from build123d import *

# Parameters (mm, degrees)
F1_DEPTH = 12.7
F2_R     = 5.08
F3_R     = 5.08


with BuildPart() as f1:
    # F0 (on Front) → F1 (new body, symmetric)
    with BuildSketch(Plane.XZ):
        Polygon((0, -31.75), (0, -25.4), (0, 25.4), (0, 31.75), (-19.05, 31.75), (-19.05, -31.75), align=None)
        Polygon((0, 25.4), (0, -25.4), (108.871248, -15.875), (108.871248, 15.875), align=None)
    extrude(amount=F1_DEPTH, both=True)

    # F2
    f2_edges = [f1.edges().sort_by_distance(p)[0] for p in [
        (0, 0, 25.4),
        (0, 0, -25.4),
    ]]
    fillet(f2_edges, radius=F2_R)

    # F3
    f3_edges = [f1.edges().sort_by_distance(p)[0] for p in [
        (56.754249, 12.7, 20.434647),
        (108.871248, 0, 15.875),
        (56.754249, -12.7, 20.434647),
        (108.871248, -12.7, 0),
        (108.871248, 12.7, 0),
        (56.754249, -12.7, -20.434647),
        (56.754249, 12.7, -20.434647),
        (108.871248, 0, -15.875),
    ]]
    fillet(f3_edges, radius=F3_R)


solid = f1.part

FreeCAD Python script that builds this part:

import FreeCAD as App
import Part
import Sketcher
Q = App.Units.Quantity


def edges_at(feature, points):
    """Names of the edges that pass closest to the given points."""
    edges = feature.Shape.Edges
    near = lambda p: min(range(len(edges)), key=lambda i: edges[i].distToShape(Part.Vertex(*p))[0])
    return sorted({f"Edge{near(p) + 1}" for p in points})

doc = App.newDocument("Part")
params = doc.addObject("Spreadsheet::Sheet", "Params")
for row, (alias, value) in enumerate([
    ("sketch1_height", "2.5 in"),
    ("sketch1_width", "0.75 in"),
    ("sketch1_height2", "1.25 in"),
    ("pad1_length", "1 in"),
    ("fillet_radius", "0.2 in"),
    ("fillet2_radius", "0.2 in"),
], start=1):
    params.set(f"A{row}", alias)
    params.set(f"B{row}", "=" + value)
    params.setAlias(f"B{row}", alias)

body = doc.addObject("PartDesign::Body", "Body")

sketch1 = body.newObject("Sketcher::SketchObject", "Sketch")
sketch1.AttachmentSupport = (doc.getObject("XZ_Plane"), [""])
sketch1.MapMode = "FlatFace"
sketch1.addGeometry(Part.LineSegment(App.Vector(0, -32, 0), App.Vector(0, -25, 0)), False)
sketch1.addGeometry(Part.LineSegment(App.Vector(0, -25, 0), App.Vector(109, -16, 0)), False)
sketch1.addGeometry(Part.LineSegment(App.Vector(109, -16, 0), App.Vector(109, 16, 0)), False)
sketch1.addGeometry(Part.LineSegment(App.Vector(109, 16, 0), App.Vector(0, 25, 0)), False)
sketch1.addGeometry(Part.LineSegment(App.Vector(0, 25, 0), App.Vector(0, 32, 0)), False)
sketch1.addGeometry(Part.LineSegment(App.Vector(0, 32, 0), App.Vector(-19, 32, 0)), False)
sketch1.addGeometry(Part.LineSegment(App.Vector(-19, 32, 0), App.Vector(-19, -32, 0)), False)
sketch1.addGeometry(Part.LineSegment(App.Vector(-19, -32, 0), App.Vector(0, -32, 0)), False)
sketch1.addConstraint(Sketcher.Constraint("Coincident", 0, 2, 1, 1))
sketch1.addConstraint(Sketcher.Constraint("Coincident", 1, 2, 2, 1))
sketch1.addConstraint(Sketcher.Constraint("Coincident", 2, 2, 3, 1))
sketch1.addConstraint(Sketcher.Constraint("Coincident", 3, 2, 4, 1))
sketch1.addConstraint(Sketcher.Constraint("Coincident", 4, 2, 5, 1))
sketch1.addConstraint(Sketcher.Constraint("Coincident", 5, 2, 6, 1))
sketch1.addConstraint(Sketcher.Constraint("Coincident", 6, 2, 7, 1))
sketch1.addConstraint(Sketcher.Constraint("Coincident", 7, 2, 0, 1))
sketch1.addConstraint(Sketcher.Constraint("Vertical", 0))
sketch1.addConstraint(Sketcher.Constraint("Vertical", 2))
sketch1.addConstraint(Sketcher.Constraint("Vertical", 4))
sketch1.addConstraint(Sketcher.Constraint("Horizontal", 5))
sketch1.addConstraint(Sketcher.Constraint("Vertical", 6))
sketch1.addConstraint(Sketcher.Constraint("Horizontal", 7))
sketch1.addConstraint(Sketcher.Constraint("Symmetric", 0, 2, 3, 2, -1, 1))
sketch1.addConstraint(Sketcher.Constraint("Symmetric", 4, 2, 7, 2, -1))
sketch1.addConstraint(Sketcher.Constraint("Equal", 1, 3))
sketch1.addConstraint(Sketcher.Constraint("DistanceY", 6, 2, 6, 1, Q("2.5 in")))
sketch1.addConstraint(Sketcher.Constraint("DistanceY", 0, 2, -1, 1, Q("1 in")))
sketch1.addConstraint(Sketcher.Constraint("Angle", 1, Q("5 deg")))
sketch1.addConstraint(Sketcher.Constraint("DistanceX", 5, 2, 5, 1, Q("0.75 in")))
sketch1.addConstraint(Sketcher.Constraint("DistanceY", 2, 1, 2, 2, Q("1.25 in")))
sketch1.setExpression("Constraints[17]", "Params.sketch1_height")
sketch1.setExpression("Constraints[20]", "Params.sketch1_width")
sketch1.setExpression("Constraints[21]", "Params.sketch1_height2")
pad1 = body.newObject("PartDesign::Pad", "Pad")
pad1.Profile = sketch1
pad1.setExpression("Length", "Params.pad1_length")
pad1.Midplane = True
doc.recompute()

fillet = body.newObject("PartDesign::Fillet", "Fillet")
fillet.Base = (pad1, edges_at(pad1, [(0, 0, 25.4), (0, 0, -25.4)]))
fillet.setExpression("Radius", "Params.fillet_radius")
doc.recompute()

fillet2 = body.newObject("PartDesign::Fillet", "Fillet001")
fillet2.Base = (fillet, edges_at(fillet, [
    (56.754, 12.7, 20.435),
    (108.871, 0, 15.875),
    (56.754, -12.7, 20.435),
    (108.871, -12.7, 0),
    (108.871, 12.7, 0),
    (56.754, -12.7, -20.435),
    (56.754, 12.7, -20.435),
    (108.871, 0, -15.875),
]))
fillet2.setExpression("Radius", "Params.fillet2_radius")

doc.recompute()
